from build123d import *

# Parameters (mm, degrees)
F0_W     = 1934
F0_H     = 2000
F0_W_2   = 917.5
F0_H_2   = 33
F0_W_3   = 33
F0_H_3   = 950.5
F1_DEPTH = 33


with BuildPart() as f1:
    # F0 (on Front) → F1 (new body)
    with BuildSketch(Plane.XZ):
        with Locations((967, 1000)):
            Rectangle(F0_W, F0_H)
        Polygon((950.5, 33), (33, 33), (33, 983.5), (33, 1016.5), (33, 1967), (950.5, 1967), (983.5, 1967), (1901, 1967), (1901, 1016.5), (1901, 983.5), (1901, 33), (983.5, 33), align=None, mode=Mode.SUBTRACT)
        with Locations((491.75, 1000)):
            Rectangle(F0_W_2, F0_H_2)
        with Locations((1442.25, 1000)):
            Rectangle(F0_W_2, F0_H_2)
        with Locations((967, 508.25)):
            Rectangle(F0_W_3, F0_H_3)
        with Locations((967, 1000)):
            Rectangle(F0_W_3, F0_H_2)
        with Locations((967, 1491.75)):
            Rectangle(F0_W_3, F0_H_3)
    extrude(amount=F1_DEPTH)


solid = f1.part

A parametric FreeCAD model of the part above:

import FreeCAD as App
import Part
import Sketcher


def add_polygon(sketch, points):
    """Adds a closed chain of lines whose ends are joined by coincident constraints."""
    first, n = sketch.GeometryCount, len(points)
    for a, b in zip(points, points[1:] + points[:1]):
        sketch.addGeometry(Part.LineSegment(App.Vector(*a, 0), App.Vector(*b, 0)), False)
    for i in range(n):
        sketch.addConstraint(Sketcher.Constraint("Coincident", first + i, 2, first + (i + 1) % n, 1))

doc = App.newDocument("Part")
body = doc.addObject("PartDesign::Body", "Body")

sketch1 = body.newObject("Sketcher::SketchObject", "Sketch")
sketch1.AttachmentSupport = (doc.getObject("XZ_Plane"), [""])
sketch1.MapMode = "FlatFace"
add_polygon(sketch1, [(0, 2000), (0, 0), (1934, 0), (1934, 2000)])
add_polygon(sketch1, [(33, 984), (950, 984), (950, 33), (33, 33)])
add_polygon(sketch1, [(984, 33), (984, 984), (1901, 984), (1901, 33)])
add_polygon(sketch1, [(1901, 1016), (984, 1016), (984, 1967), (1901, 1967)])
add_polygon(sketch1, [(950, 1016), (33, 1016), (33, 1967), (950, 1967)])
sketch1.addConstraint(Sketcher.Constraint("Vertical", 0))
sketch1.addConstraint(Sketcher.Constraint("Horizontal", 1))
sketch1.addConstraint(Sketcher.Constraint("Vertical", 2))
sketch1.addConstraint(Sketcher.Constraint("Horizontal", 3))
sketch1.addConstraint(Sketcher.Constraint("Horizontal", 4))
sketch1.addConstraint(Sketcher.Constraint("Vertical", 5))
sketch1.addConstraint(Sketcher.Constraint("Horizontal", 6))
sketch1.addConstraint(Sketcher.Constraint("Vertical", 7))
sketch1.addConstraint(Sketcher.Constraint("Vertical", 8))
sketch1.addConstraint(Sketcher.Constraint("Horizontal", 9))
sketch1.addConstraint(Sketcher.Constraint("Vertical", 10))
sketch1.addConstraint(Sketcher.Constraint("Horizontal", 11))
sketch1.addConstraint(Sketcher.Constraint("Horizontal", 12))
sketch1.addConstraint(Sketcher.Constraint("Vertical", 13))
sketch1.addConstraint(Sketcher.Constraint("Horizontal", 14))
sketch1.addConstraint(Sketcher.Constraint("Vertical", 15))
sketch1.addConstraint(Sketcher.Constraint("Horizontal", 16))
sketch1.addConstraint(Sketcher.Constraint("Vertical", 17))
sketch1.addConstraint(Sketcher.Constraint("Horizontal", 18))
sketch1.addConstraint(Sketcher.Constraint("Vertical", 19))
sketch1.addConstraint(Sketcher.Constraint("Coincident", 0, 2, -1, 1))
sketch1.addConstraint(Sketcher.Constraint("Horizontal", 7, 2, 8, 2))
sketch1.addConstraint(Sketcher.Constraint("Horizontal", 6, 2, 10, 2))
sketch1.addConstraint(Sketcher.Constraint("Horizontal", 15, 2, 16, 2))
sketch1.addConstraint(Sketcher.Constraint("Horizontal", 14, 2, 17, 2))
sketch1.addConstraint(Sketcher.Constraint("Vertical", 11, 2, 12, 2))
sketch1.addConstraint(Sketcher.Constraint("Vertical", 10, 2, 14, 2))
sketch1.addConstraint(Sketcher.Constraint("Vertical", 7, 2, 16, 2))
sketch1.addConstraint(Sketcher.Constraint("Vertical", 5, 2, 18, 2))
sketch1.addConstraint(Sketcher.Constraint("Equal", 6, 9))
sketch1.addConstraint(Sketcher.Constraint("Equal", 10, 13))
sketch1.addConstraint(Sketcher.Constraint("DistanceX", 1, 1, 1, 2, 1934.0))
sketch1.addConstraint(Sketcher.Constraint("DistanceY", 0, 2, 0, 1, 2000.0))
sketch1.addConstraint(Sketcher.Constraint("DistanceX", 4, 1, 4, 2, 917.5))
sketch1.addConstraint(Sketcher.Constraint("DistanceY", 5, 2, 5, 1, 950.5))
sketch1.addConstraint(Sketcher.Constraint("DistanceY", -1, 1, 5, 2, 33.0))
sketch1.addConstraint(Sketcher.Constraint("DistanceX", -1, 1, 6, 2, 33.0))
sketch1.addConstraint(Sketcher.Constraint("DistanceX", -1, 1, 9, 2, 1901.0))
sketch1.addConstraint(Sketcher.Constraint("DistanceY", -1, 1, 13, 2, 1967.0))
pad1 = body.newObject("PartDesign::Pad", "Pad")
pad1.Profile = sketch1
pad1.Length = 33

doc.recompute()
